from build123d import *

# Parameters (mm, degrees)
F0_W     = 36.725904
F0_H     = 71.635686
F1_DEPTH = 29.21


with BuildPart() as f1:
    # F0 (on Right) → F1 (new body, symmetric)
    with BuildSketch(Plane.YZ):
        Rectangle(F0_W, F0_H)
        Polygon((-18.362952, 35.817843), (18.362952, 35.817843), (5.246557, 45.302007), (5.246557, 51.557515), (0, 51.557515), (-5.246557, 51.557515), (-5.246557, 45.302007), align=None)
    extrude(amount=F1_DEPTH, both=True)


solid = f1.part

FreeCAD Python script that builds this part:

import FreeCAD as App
import Part
import Sketcher

V = App.Vector


def add_polygon(sketch, points):
    """Adds a closed chain of lines whose ends are joined by coincident constraints."""
    first, n = sketch.GeometryCount, len(points)
    for a, b in zip(points, points[1:] + points[:1]):
        sketch.addGeometry(Part.LineSegment(App.Vector(*a, 0), App.Vector(*b, 0)), False)
    for i in range(n):
        sketch.addConstraint(Sketcher.Constraint("Coincident", first + i, 2, first + (i + 1) % n, 1))

doc = App.newDocument("Part")
params = doc.addObject("Spreadsheet::Sheet", "Params")
for row, (alias, value) in enumerate([
    ("pad1_length", "2.3 in"),
], start=1):
    params.set(f"A{row}", alias)
    params.set(f"B{row}", "=" + value)
    params.setAlias(f"B{row}", alias)

body = doc.addObject("PartDesign::Body", "Body")

# Sketch on YZ plane
sketch1 = body.newObject("Sketcher::SketchObject", "Sketch")
sketch1.AttachmentSupport = (doc.getObject("YZ_Plane"), [""])
sketch1.MapMode = "FlatFace"
add_polygon(sketch1, [(-18.362952, 35.817843), (-18.362952, -35.817843), (18.362952, -35.817843), (18.362952, 35.817843), (5.246557, 45.302007), (5.246557, 51.557515), (-5.246557, 51.557515), (-5.246557, 45.302007)])  # lines 0-7
sketch1.addConstraint([
    Sketcher.Constraint("Vertical", 0),
    Sketcher.Constraint("Horizontal", 1),
    Sketcher.Constraint("Vertical", 2),
    Sketcher.Constraint("Vertical", 4),
    Sketcher.Constraint("Horizontal", 5),
    Sketcher.Constraint("Vertical", 6),
    Sketcher.Constraint("Symmetric", 0, 2, 2, 2, -1, 1),
    Sketcher.Constraint("Symmetric", 3, 2, 6, 2, -2),
    Sketcher.Constraint("Horizontal", 2, 2, 7, 2),
    Sketcher.Constraint("Distance", 3, 16.18608),
    Sketcher.Constraint("DistanceX", 1, 1, 1, 2, 36.725904),
    Sketcher.Constraint("DistanceX", 5, 2, 5, 1, 10.493114),
    Sketcher.Constraint("DistanceY", 0, 2, 0, 1, 71.635686),
    Sketcher.Constraint("DistanceY", 4, 1, 4, 2, 6.255508),
])
pad1 = body.newObject("PartDesign::Pad", "Pad")
pad1.Profile = sketch1
pad1.setExpression("Length", "Params.pad1_length")
pad1.Midplane = True

doc.recompute()
